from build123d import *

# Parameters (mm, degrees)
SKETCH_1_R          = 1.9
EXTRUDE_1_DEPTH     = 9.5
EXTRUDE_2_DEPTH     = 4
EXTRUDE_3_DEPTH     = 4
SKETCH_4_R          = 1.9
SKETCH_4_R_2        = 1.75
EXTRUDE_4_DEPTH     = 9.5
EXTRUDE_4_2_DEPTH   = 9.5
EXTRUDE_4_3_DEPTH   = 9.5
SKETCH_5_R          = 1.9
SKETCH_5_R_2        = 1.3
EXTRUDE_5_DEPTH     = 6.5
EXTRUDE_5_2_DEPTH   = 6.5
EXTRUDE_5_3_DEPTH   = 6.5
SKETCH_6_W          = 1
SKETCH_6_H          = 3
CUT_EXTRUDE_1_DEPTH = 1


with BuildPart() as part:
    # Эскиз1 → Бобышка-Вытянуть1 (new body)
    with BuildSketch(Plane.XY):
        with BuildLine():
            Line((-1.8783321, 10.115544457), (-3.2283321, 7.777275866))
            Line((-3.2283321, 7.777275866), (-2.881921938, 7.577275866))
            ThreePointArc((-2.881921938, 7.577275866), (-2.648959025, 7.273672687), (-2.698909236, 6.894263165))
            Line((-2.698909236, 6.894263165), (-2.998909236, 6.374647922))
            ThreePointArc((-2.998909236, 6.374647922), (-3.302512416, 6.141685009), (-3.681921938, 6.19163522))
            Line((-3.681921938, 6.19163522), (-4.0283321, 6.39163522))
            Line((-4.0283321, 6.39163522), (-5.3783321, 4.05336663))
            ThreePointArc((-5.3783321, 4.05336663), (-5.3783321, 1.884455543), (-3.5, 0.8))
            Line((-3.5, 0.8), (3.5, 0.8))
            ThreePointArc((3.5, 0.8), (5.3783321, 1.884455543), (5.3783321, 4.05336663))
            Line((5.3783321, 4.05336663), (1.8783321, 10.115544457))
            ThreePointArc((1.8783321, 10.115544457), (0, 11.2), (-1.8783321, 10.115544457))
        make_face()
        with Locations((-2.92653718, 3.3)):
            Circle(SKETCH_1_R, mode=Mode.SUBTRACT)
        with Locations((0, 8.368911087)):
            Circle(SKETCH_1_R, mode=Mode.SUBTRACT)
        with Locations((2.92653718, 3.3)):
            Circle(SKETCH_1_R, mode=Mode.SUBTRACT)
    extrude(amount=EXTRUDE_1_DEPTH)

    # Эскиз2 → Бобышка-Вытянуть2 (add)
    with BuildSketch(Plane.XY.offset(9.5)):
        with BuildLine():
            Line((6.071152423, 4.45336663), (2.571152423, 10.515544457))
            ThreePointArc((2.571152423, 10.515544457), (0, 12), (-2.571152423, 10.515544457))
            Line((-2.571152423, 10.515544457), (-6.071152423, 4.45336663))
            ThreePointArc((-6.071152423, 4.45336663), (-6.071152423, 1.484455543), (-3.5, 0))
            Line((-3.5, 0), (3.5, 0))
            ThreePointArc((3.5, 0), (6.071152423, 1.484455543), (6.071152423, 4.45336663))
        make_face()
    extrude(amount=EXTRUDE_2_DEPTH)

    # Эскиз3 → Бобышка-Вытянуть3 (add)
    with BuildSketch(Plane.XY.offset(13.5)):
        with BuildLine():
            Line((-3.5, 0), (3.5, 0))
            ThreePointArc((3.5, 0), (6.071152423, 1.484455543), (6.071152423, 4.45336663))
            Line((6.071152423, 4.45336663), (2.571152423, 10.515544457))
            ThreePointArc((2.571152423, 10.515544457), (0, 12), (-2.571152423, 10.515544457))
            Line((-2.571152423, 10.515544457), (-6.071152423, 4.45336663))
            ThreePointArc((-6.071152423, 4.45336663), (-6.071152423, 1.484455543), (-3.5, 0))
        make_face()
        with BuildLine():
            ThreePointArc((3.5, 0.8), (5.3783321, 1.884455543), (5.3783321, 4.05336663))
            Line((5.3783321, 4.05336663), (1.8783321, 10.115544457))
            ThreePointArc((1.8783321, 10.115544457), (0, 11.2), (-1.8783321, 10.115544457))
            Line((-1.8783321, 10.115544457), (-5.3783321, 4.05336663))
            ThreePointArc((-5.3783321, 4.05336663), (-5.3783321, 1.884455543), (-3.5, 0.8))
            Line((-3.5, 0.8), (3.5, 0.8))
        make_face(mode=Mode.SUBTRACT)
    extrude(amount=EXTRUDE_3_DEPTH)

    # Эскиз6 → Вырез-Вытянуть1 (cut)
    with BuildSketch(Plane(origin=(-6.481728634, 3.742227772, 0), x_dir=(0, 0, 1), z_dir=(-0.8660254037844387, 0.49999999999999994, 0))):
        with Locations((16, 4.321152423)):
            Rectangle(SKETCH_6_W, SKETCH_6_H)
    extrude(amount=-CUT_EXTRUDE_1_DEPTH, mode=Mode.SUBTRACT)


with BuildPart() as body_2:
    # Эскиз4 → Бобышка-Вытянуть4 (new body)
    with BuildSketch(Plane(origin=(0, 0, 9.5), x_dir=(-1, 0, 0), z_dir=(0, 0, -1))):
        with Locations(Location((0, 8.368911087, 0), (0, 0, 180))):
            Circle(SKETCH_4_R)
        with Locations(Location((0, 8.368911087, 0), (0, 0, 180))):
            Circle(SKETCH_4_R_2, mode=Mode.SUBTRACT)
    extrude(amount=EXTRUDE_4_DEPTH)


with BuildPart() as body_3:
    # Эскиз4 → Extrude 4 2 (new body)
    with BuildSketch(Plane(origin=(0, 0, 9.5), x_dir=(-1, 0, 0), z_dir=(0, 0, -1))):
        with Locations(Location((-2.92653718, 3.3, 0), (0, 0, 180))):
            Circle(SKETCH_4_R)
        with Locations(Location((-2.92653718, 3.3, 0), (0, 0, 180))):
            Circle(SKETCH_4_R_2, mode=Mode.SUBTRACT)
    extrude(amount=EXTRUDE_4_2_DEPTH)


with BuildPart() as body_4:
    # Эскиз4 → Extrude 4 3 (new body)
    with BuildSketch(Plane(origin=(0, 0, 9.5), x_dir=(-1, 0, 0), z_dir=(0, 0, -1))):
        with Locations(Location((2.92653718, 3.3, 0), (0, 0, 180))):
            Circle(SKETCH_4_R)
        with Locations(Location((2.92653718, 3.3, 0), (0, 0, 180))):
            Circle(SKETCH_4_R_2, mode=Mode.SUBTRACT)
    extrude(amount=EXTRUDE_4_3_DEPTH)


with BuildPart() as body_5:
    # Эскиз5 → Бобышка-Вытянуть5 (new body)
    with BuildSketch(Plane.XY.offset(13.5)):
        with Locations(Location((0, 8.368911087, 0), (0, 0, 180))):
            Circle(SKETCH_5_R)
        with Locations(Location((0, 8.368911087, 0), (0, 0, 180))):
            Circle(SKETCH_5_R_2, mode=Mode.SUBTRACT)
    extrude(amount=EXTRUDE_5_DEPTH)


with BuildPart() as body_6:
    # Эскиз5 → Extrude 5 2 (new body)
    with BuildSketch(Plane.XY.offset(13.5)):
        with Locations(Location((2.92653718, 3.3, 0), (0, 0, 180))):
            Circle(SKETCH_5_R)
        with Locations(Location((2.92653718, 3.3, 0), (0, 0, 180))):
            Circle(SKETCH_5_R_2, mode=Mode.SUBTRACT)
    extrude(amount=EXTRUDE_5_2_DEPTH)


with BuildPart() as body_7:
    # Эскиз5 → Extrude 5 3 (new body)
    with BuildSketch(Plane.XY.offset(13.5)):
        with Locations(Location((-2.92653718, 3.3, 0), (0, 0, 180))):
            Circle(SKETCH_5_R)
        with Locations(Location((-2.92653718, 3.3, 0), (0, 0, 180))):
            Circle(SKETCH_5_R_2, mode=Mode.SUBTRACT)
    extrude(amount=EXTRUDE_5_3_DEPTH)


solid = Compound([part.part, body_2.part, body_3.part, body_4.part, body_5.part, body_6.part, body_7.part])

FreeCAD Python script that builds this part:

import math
import FreeCAD as App
import Part
import Sketcher
Q = App.Units.Quantity


def add_polygon(sketch, points):
    """Adds a closed chain of lines whose ends are joined by coincident constraints."""
    first, n = sketch.GeometryCount, len(points)
    for a, b in zip(points, points[1:] + points[:1]):
        sketch.addGeometry(Part.LineSegment(App.Vector(*a, 0), App.Vector(*b, 0)), False)
    for i in range(n):
        sketch.addConstraint(Sketcher.Constraint("Coincident", first + i, 2, first + (i + 1) % n, 1))

doc = App.newDocument("Part")
params = doc.addObject("Spreadsheet::Sheet", "Params")
for row, (alias, value) in enumerate([
    ("sketch1_diameter", "3.8 mm"),
    ("sketch1_radius", "0.5 mm"),
    ("sketch1_width", "7 mm"),
    ("sketch1_length", "2.7 mm"),
    ("sketch1_length2", "0.4 mm"),
    ("pad1_length", "9.5 mm"),
    ("sketch2_width", "7 mm"),
    ("pad2_length", "4 mm"),
    ("sketch3_width", "7 mm"),
    ("pad3_length", "4 mm"),
    ("sketch4_width", "1 mm"),
    ("sketch4_height", "3 mm"),
    ("pocket1_length", "1 mm"),
    ("sketch5_diameter", "3.8 mm"),
    ("sketch5_diameter2", "3.5 mm"),
    ("pad4_length", "9.5 mm"),
    ("sketch6_diameter", "3.8 mm"),
    ("sketch6_diameter2", "3.5 mm"),
    ("pad5_length", "9.5 mm"),
    ("sketch7_diameter", "3.8 mm"),
    ("sketch7_diameter2", "3.5 mm"),
    ("pad6_length", "9.5 mm"),
    ("sketch8_diameter", "3.8 mm"),
    ("sketch8_diameter2", "2.6 mm"),
    ("pad7_length", "6.5 mm"),
    ("sketch9_diameter", "3.8 mm"),
    ("sketch9_diameter2", "2.6 mm"),
    ("pad8_length", "6.5 mm"),
    ("sketch10_diameter", "3.8 mm"),
    ("sketch10_diameter2", "2.6 mm"),
    ("pad9_length", "6.5 mm"),
], start=1):
    params.set(f"A{row}", alias)
    params.set(f"B{row}", "=" + value)
    params.setAlias(f"B{row}", alias)

body = doc.addObject("PartDesign::Body", "Body")

# Sketch on XY plane
sketch1 = body.newObject("Sketcher::SketchObject", "Sketch")
sketch1.AttachmentSupport = (doc.getObject("XY_Plane"), [""])
sketch1.MapMode = "FlatFace"
sketch1.addGeometry(Part.LineSegment(App.Vector(-1.88, 10.12, 0), App.Vector(-3.23, 7.78, 0)), False)
sketch1.addGeometry(Part.LineSegment(App.Vector(-3.23, 7.78, 0), App.Vector(-2.88, 7.58, 0)), False)
sketch1.addGeometry(Part.ArcOfCircle(Part.Circle(App.Vector(-3.13, 7.14, 0), App.Vector(0, 0, 1), 0.5), math.radians(-30), math.radians(60)), False)
sketch1.addGeometry(Part.LineSegment(App.Vector(-2.7, 6.89, 0), App.Vector(-3, 6.37, 0)), False)
sketch1.addGeometry(Part.ArcOfCircle(Part.Circle(App.Vector(-3.43, 6.62, 0), App.Vector(0, 0, 1), 0.5), math.radians(-120), math.radians(-30)), False)
sketch1.addGeometry(Part.LineSegment(App.Vector(-3.68, 6.19, 0), App.Vector(-4.03, 6.39, 0)), False)
sketch1.addGeometry(Part.LineSegment(App.Vector(-4.03, 6.39, 0), App.Vector(-5.38, 4.05, 0)), False)
sketch1.addGeometry(Part.ArcOfCircle(Part.Circle(App.Vector(-3.5, 2.97, 0), App.Vector(0, 0, 1), 2.17), math.radians(150), math.radians(270)), False)
sketch1.addGeometry(Part.LineSegment(App.Vector(-3.5, 0.8, 0), App.Vector(3.5, 0.8, 0)), False)
sketch1.addGeometry(Part.ArcOfCircle(Part.Circle(App.Vector(3.5, 2.97, 0), App.Vector(0, 0, 1), 2.17), math.radians(-90), math.radians(30)), False)
sketch1.addGeometry(Part.LineSegment(App.Vector(5.38, 4.05, 0), App.Vector(1.88, 10.12, 0)), False)
sketch1.addGeometry(Part.ArcOfCircle(Part.Circle(App.Vector(0, 9.03, 0), App.Vector(0, 0, 1), 2.17), math.radians(30), math.radians(150)), False)
sketch1.addGeometry(Part.Circle(App.Vector(-2.93, 3.3, 0), App.Vector(0, 0, 1), 1.9), False)
sketch1.addGeometry(Part.Circle(App.Vector(2.93, 3.3, 0), App.Vector(0, 0, 1), 1.9), False)
sketch1.addGeometry(Part.Circle(App.Vector(0, 8.37, 0), App.Vector(0, 0, 1), 1.9), False)
sketch1.addConstraint(Sketcher.Constraint("Coincident", 0, 2, 1, 1))
sketch1.addConstraint(Sketcher.Constraint("Tangent", 1, 2, 2, 2))
sketch1.addConstraint(Sketcher.Constraint("Tangent", 2, 1, 3, 1))
sketch1.addConstraint(Sketcher.Constraint("Tangent", 3, 2, 4, 2))
sketch1.addConstraint(Sketcher.Constraint("Tangent", 4, 1, 5, 1))
sketch1.addConstraint(Sketcher.Constraint("Coincident", 5, 2, 6, 1))
sketch1.addConstraint(Sketcher.Constraint("Tangent", 6, 2, 7, 1))
sketch1.addConstraint(Sketcher.Constraint("Tangent", 7, 2, 8, 1))
sketch1.addConstraint(Sketcher.Constraint("Tangent", 8, 2, 9, 1))
sketch1.addConstraint(Sketcher.Constraint("Tangent", 9, 2, 10, 1))
sketch1.addConstraint(Sketcher.Constraint("Tangent", 10, 2, 11, 1))
sketch1.addConstraint(Sketcher.Constraint("Tangent", 11, 2, 0, 1))
sketch1.addConstraint(Sketcher.Constraint("Horizontal", 8))
sketch1.addConstraint(Sketcher.Constraint("Equal", 2, 4))
sketch1.addConstraint(Sketcher.Constraint("Equal", 7, 9))
sketch1.addConstraint(Sketcher.Constraint("Equal", 9, 11))
sketch1.addConstraint(Sketcher.Constraint("Equal", 12, 13))
sketch1.addConstraint(Sketcher.Constraint("Equal", 13, 14))
sketch1.addConstraint(Sketcher.Constraint("Symmetric", 12, 3, 13, 3, -2))
sketch1.addConstraint(Sketcher.Constraint("Symmetric", 6, 2, 9, 2, -2))
sketch1.addConstraint(Sketcher.Constraint("Symmetric", 10, 2, 11, 2, -2))
sketch1.addConstraint(Sketcher.Constraint("PointOnObject", 14, 3, -2))
sketch1.addConstraint(Sketcher.Constraint("Perpendicular", 0, 1))
sketch1.addConstraint(Sketcher.Constraint("Perpendicular", 1, 3))
sketch1.addConstraint(Sketcher.Constraint("Perpendicular", 3, 5))
sketch1.addConstraint(Sketcher.Constraint("Equal", 0, 6))
sketch1.addConstraint(Sketcher.Constraint("Diameter", 12, 3.8))
sketch1.addConstraint(Sketcher.Constraint("Radius", 2, 0.5))
sketch1.addConstraint(Sketcher.Constraint("DistanceX", 8, 1, 8, 2, 7.0))
sketch1.addConstraint(Sketcher.Constraint("Angle", 0, Q("-120 deg")))
sketch1.addConstraint(Sketcher.Constraint("Distance", 0, 2.7))
sketch1.addConstraint(Sketcher.Constraint("Distance", 1, 0.4))
sketch1.addConstraint(Sketcher.Constraint("DistanceY", -1, 1, 12, 3, 3.3))
sketch1.addConstraint(Sketcher.Constraint("DistanceY", -1, 1, 7, 2, 0.8))
sketch1.addConstraint(Sketcher.Constraint("Radius", 7, 2.168911))
sketch1.addConstraint(Sketcher.Constraint("DistanceY", -1, 1, 14, 3, 8.368911))
sketch1.addConstraint(Sketcher.Constraint("DistanceX", 2, 3, 13, 3, 6.058459))
sketch1.setExpression("Constraints[26]", "Params.sketch1_diameter")
sketch1.setExpression("Constraints[27]", "Params.sketch1_radius")
sketch1.setExpression("Constraints[28]", "Params.sketch1_width")
sketch1.setExpression("Constraints[30]", "Params.sketch1_length")
sketch1.setExpression("Constraints[31]", "Params.sketch1_length2")
pad1 = body.newObject("PartDesign::Pad", "Pad")
pad1.Profile = sketch1
pad1.setExpression("Length", "Params.pad1_length")

# Sketch on XY plane
sketch2 = body.newObject("Sketcher::SketchObject", "Sketch001")
sketch2.AttachmentSupport = (doc.getObject("XY_Plane"), [""])
sketch2.MapMode = "FlatFace"
sketch2.AttachmentOffset = App.Placement(App.Vector(0, 0, 9.5), App.Rotation())
sketch2.addGeometry(Part.LineSegment(App.Vector(6.1, 4.5, 0), App.Vector(2.6, 10.5, 0)), False)
sketch2.addGeometry(Part.ArcOfCircle(Part.Circle(App.Vector(0, 9, 0), App.Vector(0, 0, 1), 3), math.radians(30), math.radians(150)), False)
sketch2.addGeometry(Part.LineSegment(App.Vector(-2.6, 10.5, 0), App.Vector(-6.1, 4.5, 0)), False)
sketch2.addGeometry(Part.ArcOfCircle(Part.Circle(App.Vector(-3.5, 3, 0), App.Vector(0, 0, 1), 3), math.radians(150), math.radians(270)), False)
sketch2.addGeometry(Part.LineSegment(App.Vector(-3.5, 0, 0), App.Vector(3.5, 0, 0)), False)
sketch2.addGeometry(Part.ArcOfCircle(Part.Circle(App.Vector(3.5, 3, 0), App.Vector(0, 0, 1), 3), math.radians(-90), math.radians(30)), False)
sketch2.addConstraint(Sketcher.Constraint("Tangent", 0, 2, 1, 1))
sketch2.addConstraint(Sketcher.Constraint("Tangent", 1, 2, 2, 1))
sketch2.addConstraint(Sketcher.Constraint("Tangent", 2, 2, 3, 1))
sketch2.addConstraint(Sketcher.Constraint("Tangent", 3, 2, 4, 1))
sketch2.addConstraint(Sketcher.Constraint("Tangent", 4, 2, 5, 1))
sketch2.addConstraint(Sketcher.Constraint("Tangent", 5, 2, 0, 1))
sketch2.addConstraint(Sketcher.Constraint("Horizontal", 4))
sketch2.addConstraint(Sketcher.Constraint("Equal", 1, 3))
sketch2.addConstraint(Sketcher.Constraint("Equal", 3, 5))
sketch2.addConstraint(Sketcher.Constraint("Symmetric", 3, 2, 4, 2, -1, 1))
sketch2.addConstraint(Sketcher.Constraint("PointOnObject", 1, 3, -2))
sketch2.addConstraint(Sketcher.Constraint("DistanceX", 4, 1, 4, 2, 7.0))
sketch2.addConstraint(Sketcher.Constraint("Angle", 0, Q("120 deg")))
sketch2.addConstraint(Sketcher.Constraint("Radius", 1, 2.968911))
sketch2.setExpression("Constraints[11]", "Params.sketch2_width")
pad2 = body.newObject("PartDesign::Pad", "Pad001")
pad2.Profile = sketch2
pad2.setExpression("Length", "Params.pad2_length")

# Sketch on XY plane
sketch3 = body.newObject("Sketcher::SketchObject", "Sketch002")
sketch3.AttachmentSupport = (doc.getObject("XY_Plane"), [""])
sketch3.MapMode = "FlatFace"
sketch3.AttachmentOffset = App.Placement(App.Vector(0, 0, 13.5), App.Rotation())
sketch3.addGeometry(Part.LineSegment(App.Vector(-3.5, 0, 0), App.Vector(3.5, 0, 0)), False)
sketch3.addGeometry(Part.ArcOfCircle(Part.Circle(App.Vector(3.5, 3, 0), App.Vector(0, 0, 1), 3), math.radians(-90), math.radians(30)), False)
sketch3.addGeometry(Part.LineSegment(App.Vector(6.1, 4.5, 0), App.Vector(2.6, 10.5, 0)), False)
sketch3.addGeometry(Part.ArcOfCircle(Part.Circle(App.Vector(0, 9, 0), App.Vector(0, 0, 1), 3), math.radians(30), math.radians(150)), False)
sketch3.addGeometry(Part.LineSegment(App.Vector(-2.6, 10.5, 0), App.Vector(-6.1, 4.5, 0)), False)
sketch3.addGeometry(Part.ArcOfCircle(Part.Circle(App.Vector(-3.5, 3, 0), App.Vector(0, 0, 1), 3), math.radians(150), math.radians(270)), False)
sketch3.addGeometry(Part.ArcOfCircle(Part.Circle(App.Vector(3.5, 3, 0), App.Vector(0, 0, 1), 2.2), math.radians(-90), math.radians(30)), False)
sketch3.addGeometry(Part.LineSegment(App.Vector(3.5, 0.8, 0), App.Vector(-3.5, 0.8, 0)), False)
sketch3.addGeometry(Part.ArcOfCircle(Part.Circle(App.Vector(-3.5, 3, 0), App.Vector(0, 0, 1), 2.2), math.radians(150), math.radians(270)), False)
sketch3.addGeometry(Part.LineSegment(App.Vector(-5.4, 4.1, 0), App.Vector(-1.9, 10.1, 0)), False)
sketch3.addGeometry(Part.ArcOfCircle(Part.Circle(App.Vector(0, 9, 0), App.Vector(0, 0, 1), 2.2), math.radians(30), math.radians(150)), False)
sketch3.addGeometry(Part.LineSegment(App.Vector(1.9, 10.1, 0), App.Vector(5.4, 4.1, 0)), False)
sketch3.addConstraint(Sketcher.Constraint("Tangent", 0, 2, 1, 1))
sketch3.addConstraint(Sketcher.Constraint("Tangent", 1, 2, 2, 1))
sketch3.addConstraint(Sketcher.Constraint("Tangent", 2, 2, 3, 1))
sketch3.addConstraint(Sketcher.Constraint("Tangent", 3, 2, 4, 1))
sketch3.addConstraint(Sketcher.Constraint("Tangent", 4, 2, 5, 1))
sketch3.addConstraint(Sketcher.Constraint("Tangent", 5, 2, 0, 1))
sketch3.addConstraint(Sketcher.Constraint("Tangent", 6, 1, 7, 1))
sketch3.addConstraint(Sketcher.Constraint("Tangent", 7, 2, 8, 2))
sketch3.addConstraint(Sketcher.Constraint("Tangent", 8, 1, 9, 1))
sketch3.addConstraint(Sketcher.Constraint("Tangent", 9, 2, 10, 2))
sketch3.addConstraint(Sketcher.Constraint("Tangent", 10, 1, 11, 1))
sketch3.addConstraint(Sketcher.Constraint("Tangent", 11, 2, 6, 2))
sketch3.addConstraint(Sketcher.Constraint("Horizontal", 0))
sketch3.addConstraint(Sketcher.Constraint("Horizontal", 7))
sketch3.addConstraint(Sketcher.Constraint("Coincident", 6, 3, 1, 3))
sketch3.addConstraint(Sketcher.Constraint("Coincident", 8, 3, 5, 3))
sketch3.addConstraint(Sketcher.Constraint("Coincident", 10, 3, 3, 3))
sketch3.addConstraint(Sketcher.Constraint("Equal", 1, 3))
sketch3.addConstraint(Sketcher.Constraint("Equal", 3, 5))
sketch3.addConstraint(Sketcher.Constraint("Equal", 8, 10))
sketch3.addConstraint(Sketcher.Constraint("Symmetric", 0, 2, 5, 2, -1, 1))
sketch3.addConstraint(Sketcher.Constraint("PointOnObject", 3, 3, -2))
sketch3.addConstraint(Sketcher.Constraint("DistanceX", 0, 1, 0, 2, 7.0))
sketch3.addConstraint(Sketcher.Constraint("Angle", 2, Q("120 deg")))
sketch3.addConstraint(Sketcher.Constraint("DistanceY", -1, 1, 6, 1, 0.8))
sketch3.addConstraint(Sketcher.Constraint("Radius", 1, 2.968911))
sketch3.setExpression("Constraints[22]", "Params.sketch3_width")
pad3 = body.newObject("PartDesign::Pad", "Pad002")
pad3.Profile = sketch3
pad3.setExpression("Length", "Params.pad3_length")

# Sketch on an angled plane
sketch4 = body.newObject("Sketcher::SketchObject", "Sketch003")
sketch4.Placement = App.Placement(App.Vector(-6.481729, 3.742228, 0), App.Rotation(App.Vector(0, 0, 1), App.Vector(0.5, 0.866025404, 0), App.Vector(-0.866025404, 0.5, 0), "ZXY"))
add_polygon(sketch4, [(15.5, 5.8), (15.5, 2.8), (16.5, 2.8), (16.5, 5.8)])  # lines 0-3
sketch4.addConstraint(Sketcher.Constraint("Vertical", 0))
sketch4.addConstraint(Sketcher.Constraint("Horizontal", 1))
sketch4.addConstraint(Sketcher.Constraint("Vertical", 2))
sketch4.addConstraint(Sketcher.Constraint("Horizontal", 3))
sketch4.addConstraint(Sketcher.Constraint("DistanceX", 1, 1, 1, 2, 1.0))
sketch4.addConstraint(Sketcher.Constraint("DistanceY", 0, 2, 0, 1, 3.0))
sketch4.addConstraint(Sketcher.Constraint("DistanceX", -1, 1, 0, 2, 15.5))
sketch4.addConstraint(Sketcher.Constraint("DistanceY", -1, 1, 0, 2, 2.821152))
sketch4.setExpression("Constraints[8]", "Params.sketch4_width")
sketch4.setExpression("Constraints[9]", "Params.sketch4_height")
pocket1 = body.newObject("PartDesign::Pocket", "Pocket")
pocket1.Profile = sketch4
pocket1.setExpression("Length", "Params.pocket1_length")
body2 = doc.addObject("PartDesign::Body", "Body001")

# Sketch on XY plane
sketch5 = body2.newObject("Sketcher::SketchObject", "Sketch004")
sketch5.AttachmentSupport = (doc.getObject("XY_Plane001"), [""])
sketch5.MapMode = "FlatFace"
sketch5.AttachmentOffset = App.Placement(App.Vector(0, 0, 9.5), App.Rotation())
sketch5.addGeometry(Part.Circle(App.Vector(0, 8.4, 0), App.Vector(0, 0, 1), 1.9), False)
sketch5.addGeometry(Part.Circle(App.Vector(0, 8.4, 0), App.Vector(0, 0, 1), 1.8), False)
sketch5.addConstraint(Sketcher.Constraint("Coincident", 1, 3, 0, 3))
sketch5.addConstraint(Sketcher.Constraint("PointOnObject", 0, 3, -2))
sketch5.addConstraint(Sketcher.Constraint("Diameter", 0, 3.8))
sketch5.addConstraint(Sketcher.Constraint("Diameter", 1, 3.5))
sketch5.addConstraint(Sketcher.Constraint("DistanceY", -1, 1, 0, 3, 8.368911))
sketch5.setExpression("Constraints[2]", "Params.sketch5_diameter")
sketch5.setExpression("Constraints[3]", "Params.sketch5_diameter2")
pad4 = body2.newObject("PartDesign::Pad", "Pad003")
pad4.Profile = sketch5
pad4.setExpression("Length", "Params.pad4_length")
pad4.Reversed = True
body3 = doc.addObject("PartDesign::Body", "Body002")

# Sketch on XY plane
sketch6 = body3.newObject("Sketcher::SketchObject", "Sketch005")
sketch6.AttachmentSupport = (doc.getObject("XY_Plane002"), [""])
sketch6.MapMode = "FlatFace"
sketch6.AttachmentOffset = App.Placement(App.Vector(0, 0, 9.5), App.Rotation())
sketch6.addGeometry(Part.Circle(App.Vector(2.9, 3.3, 0), App.Vector(0, 0, 1), 1.9), False)
sketch6.addGeometry(Part.Circle(App.Vector(2.9, 3.3, 0), App.Vector(0, 0, 1), 1.8), False)
sketch6.addConstraint(Sketcher.Constraint("Coincident", 1, 3, 0, 3))
sketch6.addConstraint(Sketcher.Constraint("Diameter", 0, 3.8))
sketch6.addConstraint(Sketcher.Constraint("Diameter", 1, 3.5))
sketch6.addConstraint(Sketcher.Constraint("DistanceY", -1, 1, 0, 3, 3.3))
sketch6.addConstraint(Sketcher.Constraint("DistanceX", -1, 1, 0, 3, 2.926537))
sketch6.setExpression("Constraints[1]", "Params.sketch6_diameter")
sketch6.setExpression("Constraints[2]", "Params.sketch6_diameter2")
pad5 = body3.newObject("PartDesign::Pad", "Pad004")
pad5.Profile = sketch6
pad5.setExpression("Length", "Params.pad5_length")
pad5.Reversed = True
body4 = doc.addObject("PartDesign::Body", "Body003")

# Sketch on XY plane
sketch7 = body4.newObject("Sketcher::SketchObject", "Sketch006")
sketch7.AttachmentSupport = (doc.getObject("XY_Plane003"), [""])
sketch7.MapMode = "FlatFace"
sketch7.AttachmentOffset = App.Placement(App.Vector(0, 0, 9.5), App.Rotation())
sketch7.addGeometry(Part.Circle(App.Vector(-2.9, 3.3, 0), App.Vector(0, 0, 1), 1.9), False)
sketch7.addGeometry(Part.Circle(App.Vector(-2.9, 3.3, 0), App.Vector(0, 0, 1), 1.8), False)
sketch7.addConstraint(Sketcher.Constraint("Coincident", 1, 3, 0, 3))
sketch7.addConstraint(Sketcher.Constraint("Diameter", 0, 3.8))
sketch7.addConstraint(Sketcher.Constraint("Diameter", 1, 3.5))
sketch7.addConstraint(Sketcher.Constraint("DistanceY", -1, 1, 0, 3, 3.3))
sketch7.addConstraint(Sketcher.Constraint("DistanceX", 0, 3, -1, 1, 2.926537))
sketch7.setExpression("Constraints[1]", "Params.sketch7_diameter")
sketch7.setExpression("Constraints[2]", "Params.sketch7_diameter2")
pad6 = body4.newObject("PartDesign::Pad", "Pad005")
pad6.Profile = sketch7
pad6.setExpression("Length", "Params.pad6_length")
pad6.Reversed = True
body5 = doc.addObject("PartDesign::Body", "Body004")

# Sketch on XY plane
sketch8 = body5.newObject("Sketcher::SketchObject", "Sketch007")
sketch8.AttachmentSupport = (doc.getObject("XY_Plane004"), [""])
sketch8.MapMode = "FlatFace"
sketch8.AttachmentOffset = App.Placement(App.Vector(0, 0, 13.5), App.Rotation())
sketch8.addGeometry(Part.Circle(App.Vector(0, 8.4, 0), App.Vector(0, 0, 1), 1.9), False)
sketch8.addGeometry(Part.Circle(App.Vector(0, 8.4, 0), App.Vector(0, 0, 1), 1.3), False)
sketch8.addConstraint(Sketcher.Constraint("Coincident", 1, 3, 0, 3))
sketch8.addConstraint(Sketcher.Constraint("PointOnObject", 0, 3, -2))
sketch8.addConstraint(Sketcher.Constraint("Diameter", 0, 3.8))
sketch8.addConstraint(Sketcher.Constraint("Diameter", 1, 2.6))
sketch8.addConstraint(Sketcher.Constraint("DistanceY", -1, 1, 0, 3, 8.368911))
sketch8.setExpression("Constraints[2]", "Params.sketch8_diameter")
sketch8.setExpression("Constraints[3]", "Params.sketch8_diameter2")
pad7 = body5.newObject("PartDesign::Pad", "Pad006")
pad7.Profile = sketch8
pad7.setExpression("Length", "Params.pad7_length")
body6 = doc.addObject("PartDesign::Body", "Body005")

# Sketch on XY plane
sketch9 = body6.newObject("Sketcher::SketchObject", "Sketch008")
sketch9.AttachmentSupport = (doc.getObject("XY_Plane005"), [""])
sketch9.MapMode = "FlatFace"
sketch9.AttachmentOffset = App.Placement(App.Vector(0, 0, 13.5), App.Rotation())
sketch9.addGeometry(Part.Circle(App.Vector(2.9, 3.3, 0), App.Vector(0, 0, 1), 1.9), False)
sketch9.addGeometry(Part.Circle(App.Vector(2.9, 3.3, 0), App.Vector(0, 0, 1), 1.3), False)
sketch9.addConstraint(Sketcher.Constraint("Coincident", 1, 3, 0, 3))
sketch9.addConstraint(Sketcher.Constraint("Diameter", 0, 3.8))
sketch9.addConstraint(Sketcher.Constraint("Diameter", 1, 2.6))
sketch9.addConstraint(Sketcher.Constraint("DistanceY", -1, 1, 0, 3, 3.3))
sketch9.addConstraint(Sketcher.Constraint("DistanceX", -1, 1, 0, 3, 2.926537))
sketch9.setExpression("Constraints[1]", "Params.sketch9_diameter")
sketch9.setExpression("Constraints[2]", "Params.sketch9_diameter2")
pad8 = body6.newObject("PartDesign::Pad", "Pad007")
pad8.Profile = sketch9
pad8.setExpression("Length", "Params.pad8_length")
body7 = doc.addObject("PartDesign::Body", "Body006")

# Sketch on XY plane
sketch10 = body7.newObject("Sketcher::SketchObject", "Sketch009")
sketch10.AttachmentSupport = (doc.getObject("XY_Plane006"), [""])
sketch10.MapMode = "FlatFace"
sketch10.AttachmentOffset = App.Placement(App.Vector(0, 0, 13.5), App.Rotation())
sketch10.addGeometry(Part.Circle(App.Vector(-2.9, 3.3, 0), App.Vector(0, 0, 1), 1.9), False)
sketch10.addGeometry(Part.Circle(App.Vector(-2.9, 3.3, 0), App.Vector(0, 0, 1), 1.3), False)
sketch10.addConstraint(Sketcher.Constraint("Coincident", 1, 3, 0, 3))
sketch10.addConstraint(Sketcher.Constraint("Diameter", 0, 3.8))
sketch10.addConstraint(Sketcher.Constraint("Diameter", 1, 2.6))
sketch10.addConstraint(Sketcher.Constraint("DistanceY", -1, 1, 0, 3, 3.3))
sketch10.addConstraint(Sketcher.Constraint("DistanceX", 0, 3, -1, 1, 2.926537))
sketch10.setExpression("Constraints[1]", "Params.sketch10_diameter")
sketch10.setExpression("Constraints[2]", "Params.sketch10_diameter2")
pad9 = body7.newObject("PartDesign::Pad", "Pad008")
pad9.Profile = sketch10
pad9.setExpression("Length", "Params.pad9_length")

doc.recompute()
